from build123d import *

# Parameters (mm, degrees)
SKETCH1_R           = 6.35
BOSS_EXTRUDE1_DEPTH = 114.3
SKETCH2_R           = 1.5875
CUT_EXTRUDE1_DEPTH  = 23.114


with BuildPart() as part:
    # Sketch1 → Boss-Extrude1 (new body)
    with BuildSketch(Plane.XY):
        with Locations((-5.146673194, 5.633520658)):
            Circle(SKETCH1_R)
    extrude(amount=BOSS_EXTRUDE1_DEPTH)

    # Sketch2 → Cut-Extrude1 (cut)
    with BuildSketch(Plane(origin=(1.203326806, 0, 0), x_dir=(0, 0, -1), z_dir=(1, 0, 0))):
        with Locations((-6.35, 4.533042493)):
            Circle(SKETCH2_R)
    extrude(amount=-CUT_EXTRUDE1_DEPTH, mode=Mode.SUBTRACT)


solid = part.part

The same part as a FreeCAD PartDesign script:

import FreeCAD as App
import Part
import Sketcher
from FreeCAD import Vector
Q = App.Units.Quantity

doc = App.newDocument("Part")
body = doc.addObject("PartDesign::Body", "Body")

sketch1 = body.newObject("Sketcher::SketchObject", "Sketch")
sketch1.AttachmentSupport = (doc.getObject("XY_Plane"), [""])
sketch1.MapMode = "FlatFace"
sketch1.addGeometry(Part.Circle(Vector(-5, 6, 0), Vector(0, 0, 1), 6), False)
sketch1.addConstraint(Sketcher.Constraint("Diameter", 0, Q("0.5 in")))
sketch1.addConstraint(Sketcher.Constraint("DistanceY", -1, 1, 0, 3, 5.633521))
sketch1.addConstraint(Sketcher.Constraint("DistanceX", 0, 3, -1, 1, 5.146673))
pad1 = body.newObject("PartDesign::Pad", "Pad")
pad1.Profile = sketch1
pad1.Length = Q("4.5 in")

sketch2 = body.newObject("Sketcher::SketchObject", "Sketch001")
sketch2.AttachmentSupport = (doc.getObject("YZ_Plane"), [""])
sketch2.MapMode = "FlatFace"
sketch2.AttachmentOffset = App.Placement(Vector(0, 0, 1.203327), App.Rotation())
sketch2.addGeometry(Part.Circle(Vector(4.5, 6.3, 0), Vector(0, 0, 1), 1.6), False)
sketch2.addConstraint(Sketcher.Constraint("Diameter", 0, Q("0.125 in")))
sketch2.addConstraint(Sketcher.Constraint("DistanceY", -1, 1, 0, 3, Q("0.25 in")))
sketch2.addConstraint(Sketcher.Constraint("DistanceX", -1, 1, 0, 3, 4.533042))
pocket1 = body.newObject("PartDesign::Pocket", "Pocket")
pocket1.Profile = sketch2
pocket1.Length = Q("0.91 in")

doc.recompute()
